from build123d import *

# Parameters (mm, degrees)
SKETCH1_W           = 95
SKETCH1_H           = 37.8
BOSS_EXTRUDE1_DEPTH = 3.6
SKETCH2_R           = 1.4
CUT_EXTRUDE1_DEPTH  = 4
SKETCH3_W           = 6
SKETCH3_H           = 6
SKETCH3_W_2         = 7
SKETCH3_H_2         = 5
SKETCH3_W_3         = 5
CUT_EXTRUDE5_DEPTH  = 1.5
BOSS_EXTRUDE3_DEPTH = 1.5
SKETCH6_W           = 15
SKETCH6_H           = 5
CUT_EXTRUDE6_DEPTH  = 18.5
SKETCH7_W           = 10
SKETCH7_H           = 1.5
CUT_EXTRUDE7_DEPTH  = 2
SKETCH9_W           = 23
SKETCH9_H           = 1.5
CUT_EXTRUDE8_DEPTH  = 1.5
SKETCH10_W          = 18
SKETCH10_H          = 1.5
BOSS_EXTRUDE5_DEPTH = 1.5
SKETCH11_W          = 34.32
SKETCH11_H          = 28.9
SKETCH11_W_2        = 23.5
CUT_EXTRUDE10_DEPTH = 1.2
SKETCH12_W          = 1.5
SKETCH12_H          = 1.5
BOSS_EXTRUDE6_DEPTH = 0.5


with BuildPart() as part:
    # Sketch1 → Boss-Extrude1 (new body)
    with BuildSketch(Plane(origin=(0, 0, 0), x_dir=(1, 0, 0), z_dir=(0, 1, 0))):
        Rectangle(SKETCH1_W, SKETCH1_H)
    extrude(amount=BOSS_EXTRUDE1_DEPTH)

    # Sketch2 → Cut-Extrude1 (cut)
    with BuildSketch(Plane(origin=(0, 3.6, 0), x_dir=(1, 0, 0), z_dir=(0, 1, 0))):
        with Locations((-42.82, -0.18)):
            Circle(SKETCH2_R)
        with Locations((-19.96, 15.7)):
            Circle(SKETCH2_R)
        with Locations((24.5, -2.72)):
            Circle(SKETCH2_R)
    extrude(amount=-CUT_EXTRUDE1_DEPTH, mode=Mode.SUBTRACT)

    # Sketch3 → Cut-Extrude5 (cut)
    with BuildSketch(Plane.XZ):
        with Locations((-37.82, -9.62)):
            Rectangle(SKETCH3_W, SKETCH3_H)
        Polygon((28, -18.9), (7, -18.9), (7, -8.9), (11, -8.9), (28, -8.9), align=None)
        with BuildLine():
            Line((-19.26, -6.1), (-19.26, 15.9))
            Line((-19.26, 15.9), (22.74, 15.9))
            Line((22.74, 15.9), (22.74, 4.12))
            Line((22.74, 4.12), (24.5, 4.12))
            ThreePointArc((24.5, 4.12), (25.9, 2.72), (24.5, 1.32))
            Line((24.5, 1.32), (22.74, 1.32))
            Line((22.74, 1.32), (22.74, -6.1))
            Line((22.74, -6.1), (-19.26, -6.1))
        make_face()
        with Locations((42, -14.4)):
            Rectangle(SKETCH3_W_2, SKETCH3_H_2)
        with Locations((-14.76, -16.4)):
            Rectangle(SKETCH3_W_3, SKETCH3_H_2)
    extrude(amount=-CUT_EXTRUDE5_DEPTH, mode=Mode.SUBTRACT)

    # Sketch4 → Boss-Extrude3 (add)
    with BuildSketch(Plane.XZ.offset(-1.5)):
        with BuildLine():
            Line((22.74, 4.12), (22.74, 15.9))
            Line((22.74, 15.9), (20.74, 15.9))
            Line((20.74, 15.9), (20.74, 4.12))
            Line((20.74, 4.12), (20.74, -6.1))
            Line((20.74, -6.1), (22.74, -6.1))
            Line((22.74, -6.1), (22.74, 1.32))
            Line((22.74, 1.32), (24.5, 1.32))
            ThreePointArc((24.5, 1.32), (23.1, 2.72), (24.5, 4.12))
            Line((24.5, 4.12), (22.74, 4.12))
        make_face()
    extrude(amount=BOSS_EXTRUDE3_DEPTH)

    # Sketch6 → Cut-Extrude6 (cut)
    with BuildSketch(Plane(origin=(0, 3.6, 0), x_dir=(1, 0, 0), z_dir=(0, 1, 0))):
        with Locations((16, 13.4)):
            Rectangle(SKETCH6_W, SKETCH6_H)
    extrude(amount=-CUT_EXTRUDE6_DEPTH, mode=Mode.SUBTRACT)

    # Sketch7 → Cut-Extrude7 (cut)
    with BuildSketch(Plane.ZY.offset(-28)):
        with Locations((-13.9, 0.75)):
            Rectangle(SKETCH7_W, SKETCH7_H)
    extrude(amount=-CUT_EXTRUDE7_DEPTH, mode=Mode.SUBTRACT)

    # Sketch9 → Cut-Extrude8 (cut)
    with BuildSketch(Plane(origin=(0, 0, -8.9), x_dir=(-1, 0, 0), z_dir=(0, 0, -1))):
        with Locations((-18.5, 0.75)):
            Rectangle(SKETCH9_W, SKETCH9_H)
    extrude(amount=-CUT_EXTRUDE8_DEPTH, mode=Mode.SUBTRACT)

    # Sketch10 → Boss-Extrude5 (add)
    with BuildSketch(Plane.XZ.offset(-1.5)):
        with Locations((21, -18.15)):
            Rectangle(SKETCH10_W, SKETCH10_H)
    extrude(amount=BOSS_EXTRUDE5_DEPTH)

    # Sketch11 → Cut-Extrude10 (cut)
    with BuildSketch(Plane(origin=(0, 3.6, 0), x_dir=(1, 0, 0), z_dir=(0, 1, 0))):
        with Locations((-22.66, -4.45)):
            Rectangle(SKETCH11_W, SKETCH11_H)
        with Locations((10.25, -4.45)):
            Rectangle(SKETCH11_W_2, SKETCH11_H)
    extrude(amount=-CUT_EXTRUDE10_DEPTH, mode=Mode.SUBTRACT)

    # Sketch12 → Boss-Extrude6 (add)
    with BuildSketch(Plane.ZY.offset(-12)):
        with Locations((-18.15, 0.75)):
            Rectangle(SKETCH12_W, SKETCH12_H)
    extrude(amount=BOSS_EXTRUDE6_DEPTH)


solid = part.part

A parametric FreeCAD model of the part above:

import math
import FreeCAD as App
import Part
import Sketcher
Q = App.Units.Quantity


def add_polygon(sketch, points):
    """Adds a closed chain of lines whose ends are joined by coincident constraints."""
    first, n = sketch.GeometryCount, len(points)
    for a, b in zip(points, points[1:] + points[:1]):
        sketch.addGeometry(Part.LineSegment(App.Vector(*a, 0), App.Vector(*b, 0)), False)
    for i in range(n):
        sketch.addConstraint(Sketcher.Constraint("Coincident", first + i, 2, first + (i + 1) % n, 1))

doc = App.newDocument("Part")
body = doc.addObject("PartDesign::Body", "Body")

# Sketch on XZ plane
sketch1 = body.newObject("Sketcher::SketchObject", "Sketch")
sketch1.AttachmentSupport = (doc.getObject("XZ_Plane"), [""])
sketch1.MapMode = "FlatFace"
add_polygon(sketch1, [(-47.5, -18.9), (-47.5, 18.9), (47.5, 18.9), (47.5, -18.9)])  # lines 0-3
sketch1.addConstraint(Sketcher.Constraint("Vertical", 0))
sketch1.addConstraint(Sketcher.Constraint("Horizontal", 1))
sketch1.addConstraint(Sketcher.Constraint("Vertical", 2))
sketch1.addConstraint(Sketcher.Constraint("Horizontal", 3))
sketch1.addConstraint(Sketcher.Constraint("Symmetric", 0, 2, 2, 2, -1, 1))
sketch1.addConstraint(Sketcher.Constraint("DistanceX", 1, 1, 1, 2, Q("95 mm")))
sketch1.addConstraint(Sketcher.Constraint("DistanceY", 0, 1, 0, 2, Q("37.8 mm")))
pad1 = body.newObject("PartDesign::Pad", "Pad")
pad1.Profile = sketch1
pad1.Length = 3.6
pad1.Reversed = True

# Sketch on XZ plane
sketch2 = body.newObject("Sketcher::SketchObject", "Sketch001")
sketch2.AttachmentSupport = (doc.getObject("XZ_Plane"), [""])
sketch2.MapMode = "FlatFace"
sketch2.AttachmentOffset = App.Placement(App.Vector(0, 0, -3.6), App.Rotation())
sketch2.addGeometry(Part.Circle(App.Vector(-42.82, 0.18, 0), App.Vector(0, 0, 1), 1.4), False)
sketch2.addGeometry(Part.Circle(App.Vector(-19.96, -15.7, 0), App.Vector(0, 0, 1), 1.4), False)
sketch2.addGeometry(Part.Circle(App.Vector(24.5, 2.72, 0), App.Vector(0, 0, 1), 1.4), False)
sketch2.addConstraint(Sketcher.Constraint("Equal", 0, 1))
sketch2.addConstraint(Sketcher.Constraint("Equal", 1, 2))
sketch2.addConstraint(Sketcher.Constraint("Diameter", 0, Q("2.8 mm")))
sketch2.addConstraint(Sketcher.Constraint("DistanceY", 1, 3, -1, 1, Q("15.7 mm")))
sketch2.addConstraint(Sketcher.Constraint("DistanceX", -1, 1, 2, 3, Q("24.5 mm")))
sketch2.addConstraint(Sketcher.Constraint("DistanceX", 0, 3, -1, 1, Q("42.82 mm")))
sketch2.addConstraint(Sketcher.Constraint("DistanceY", -1, 1, 0, 3, Q("0.18 mm")))
sketch2.addConstraint(Sketcher.Constraint("DistanceX", 1, 3, -1, 1, Q("19.96 mm")))
sketch2.addConstraint(Sketcher.Constraint("DistanceY", -1, 1, 2, 3, Q("2.72 mm")))
pocket1 = body.newObject("PartDesign::Pocket", "Pocket")
pocket1.Profile = sketch2
pocket1.Length = 4
pocket1.Reversed = True

# Sketch on XZ plane
sketch3 = body.newObject("Sketcher::SketchObject", "Sketch002")
sketch3.AttachmentSupport = (doc.getObject("XZ_Plane"), [""])
sketch3.MapMode = "FlatFace"
add_polygon(sketch3, [(-40.82, -6.62), (-40.82, -12.62), (-34.82, -12.62), (-34.82, -6.62)])  # lines 0-3
add_polygon(sketch3, [(7, -18.9), (28, -18.9), (28, -8.9), (7, -8.9)])  # lines 4-7
sketch3.addGeometry(Part.LineSegment(App.Vector(-19.26, 15.9, 0), App.Vector(-19.26, -6.1, 0)), False)  # 8
sketch3.addGeometry(Part.LineSegment(App.Vector(-19.26, -6.1, 0), App.Vector(22.74, -6.1, 0)), False)  # 9
sketch3.addGeometry(Part.LineSegment(App.Vector(22.74, -6.1, 0), App.Vector(22.74, 1.32, 0)), False)  # 10
sketch3.addGeometry(Part.LineSegment(App.Vector(22.74, 1.32, 0), App.Vector(24.5, 1.32, 0)), False)  # 11
sketch3.addGeometry(Part.ArcOfCircle(Part.Circle(App.Vector(24.5, 2.72, 0), App.Vector(0, 0, 1), 1.4), math.radians(-90), math.radians(90)), False)  # 12
sketch3.addGeometry(Part.LineSegment(App.Vector(24.5, 4.12, 0), App.Vector(22.74, 4.12, 0)), False)  # 13
sketch3.addGeometry(Part.LineSegment(App.Vector(22.74, 4.12, 0), App.Vector(22.74, 15.9, 0)), False)  # 14
sketch3.addGeometry(Part.LineSegment(App.Vector(22.74, 15.9, 0), App.Vector(-19.26, 15.9, 0)), False)  # 15
add_polygon(sketch3, [(38.5, -11.9), (38.5, -16.9), (45.5, -16.9), (45.5, -11.9)])  # lines 16-19
add_polygon(sketch3, [(-17.26, -13.9), (-17.26, -18.9), (-12.26, -18.9), (-12.26, -13.9)])  # lines 20-23
sketch3.addConstraint(Sketcher.Constraint("Coincident", 8, 2, 9, 1))
sketch3.addConstraint(Sketcher.Constraint("Coincident", 9, 2, 10, 1))
sketch3.addConstraint(Sketcher.Constraint("Coincident", 10, 2, 11, 1))
sketch3.addConstraint(Sketcher.Constraint("Tangent", 11, 2, 12, 1))
sketch3.addConstraint(Sketcher.Constraint("Tangent", 12, 2, 13, 1))
sketch3.addConstraint(Sketcher.Constraint("Coincident", 13, 2, 14, 1))
sketch3.addConstraint(Sketcher.Constraint("Coincident", 14, 2, 15, 1))
sketch3.addConstraint(Sketcher.Constraint("Coincident", 15, 2, 8, 1))
sketch3.addConstraint(Sketcher.Constraint("Vertical", 0))
sketch3.addConstraint(Sketcher.Constraint("Horizontal", 1))
sketch3.addConstraint(Sketcher.Constraint("Vertical", 2))
sketch3.addConstraint(Sketcher.Constraint("Horizontal", 3))
sketch3.addConstraint(Sketcher.Constraint("Horizontal", 4))
sketch3.addConstraint(Sketcher.Constraint("Vertical", 5))
sketch3.addConstraint(Sketcher.Constraint("Horizontal", 6))
sketch3.addConstraint(Sketcher.Constraint("Vertical", 7))
sketch3.addConstraint(Sketcher.Constraint("Vertical", 8))
sketch3.addConstraint(Sketcher.Constraint("Horizontal", 9))
sketch3.addConstraint(Sketcher.Constraint("Vertical", 10))
sketch3.addConstraint(Sketcher.Constraint("Horizontal", 11))
sketch3.addConstraint(Sketcher.Constraint("Horizontal", 13))
sketch3.addConstraint(Sketcher.Constraint("Vertical", 14))
sketch3.addConstraint(Sketcher.Constraint("Horizontal", 15))
sketch3.addConstraint(Sketcher.Constraint("Vertical", 16))
sketch3.addConstraint(Sketcher.Constraint("Horizontal", 17))
sketch3.addConstraint(Sketcher.Constraint("Vertical", 18))
sketch3.addConstraint(Sketcher.Constraint("Horizontal", 19))
sketch3.addConstraint(Sketcher.Constraint("Vertical", 20))
sketch3.addConstraint(Sketcher.Constraint("Horizontal", 21))
sketch3.addConstraint(Sketcher.Constraint("Vertical", 22))
sketch3.addConstraint(Sketcher.Constraint("Horizontal", 23))
sketch3.addConstraint(Sketcher.Constraint("Horizontal", 7, 2, 20, 2))
sketch3.addConstraint(Sketcher.Constraint("Vertical", 10, 2, 13, 2))
sketch3.addConstraint(Sketcher.Constraint("Equal", 3, 0))
sketch3.addConstraint(Sketcher.Constraint("Equal", 23, 16))
sketch3.addConstraint(Sketcher.Constraint("Equal", 18, 20))
sketch3.addConstraint(Sketcher.Constraint("Radius", 12, Q("1.4 mm")))
sketch3.addConstraint(Sketcher.Constraint("DistanceX", 1, 1, 1, 2, Q("6 mm")))
sketch3.addConstraint(Sketcher.Constraint("DistanceX", 4, 1, 4, 2, Q("21 mm")))
sketch3.addConstraint(Sketcher.Constraint("DistanceX", 9, 1, 9, 2, Q("42 mm")))
sketch3.addConstraint(Sketcher.Constraint("DistanceX", 17, 1, 17, 2, Q("7 mm")))
sketch3.addConstraint(Sketcher.Constraint("DistanceX", 21, 1, 21, 2, Q("5 mm")))
sketch3.addConstraint(Sketcher.Constraint("DistanceY", 5, 1, 5, 2, Q("10 mm")))
sketch3.addConstraint(Sketcher.Constraint("DistanceY", 8, 2, 8, 1, Q("22 mm")))
sketch3.addConstraint(Sketcher.Constraint("DistanceX", -1, 1, 4, 2, Q("28 mm")))
sketch3.addConstraint(Sketcher.Constraint("DistanceY", 4, 2, 16, 2, Q("2 mm")))
sketch3.addConstraint(Sketcher.Constraint("DistanceX", 11, 2, 16, 2, Q("14 mm")))
sketch3.addConstraint(Sketcher.Constraint("DistanceX", 8, 2, 20, 2, Q("2 mm")))
sketch3.addConstraint(Sketcher.Constraint("DistanceX", 11, 1, 11, 2, Q("1.76 mm")))
sketch3.addConstraint(Sketcher.Constraint("DistanceY", 10, 1, 10, 2, Q("7.42 mm")))
sketch3.addConstraint(Sketcher.Constraint("DistanceX", -1, 1, 12, 3, Q("24.5 mm")))
sketch3.addConstraint(Sketcher.Constraint("DistanceY", 4, 2, -1, 1, Q("18.9 mm")))
sketch3.addConstraint(Sketcher.Constraint("DistanceY", 8, 2, -1, 1, Q("6.1 mm")))
sketch3.addConstraint(Sketcher.Constraint("DistanceX", 0, 2, -1, 1, Q("40.82 mm")))
sketch3.addConstraint(Sketcher.Constraint("DistanceY", 0, 2, -1, 1, Q("12.62 mm")))
pocket2 = body.newObject("PartDesign::Pocket", "Pocket001")
pocket2.Profile = sketch3
pocket2.Length = 1.5

# Sketch on XZ plane
sketch4 = body.newObject("Sketcher::SketchObject", "Sketch003")
sketch4.AttachmentSupport = (doc.getObject("XZ_Plane"), [""])
sketch4.MapMode = "FlatFace"
sketch4.AttachmentOffset = App.Placement(App.Vector(0, 0, -1.5), App.Rotation())
sketch4.addGeometry(Part.LineSegment(App.Vector(22.74, 4.12, 0), App.Vector(22.74, 15.9, 0)), False)
sketch4.addGeometry(Part.LineSegment(App.Vector(22.74, 15.9, 0), App.Vector(20.74, 15.9, 0)), False)
sketch4.addGeometry(Part.LineSegment(App.Vector(20.74, 15.9, 0), App.Vector(20.74, -6.1, 0)), False)
sketch4.addGeometry(Part.LineSegment(App.Vector(20.74, -6.1, 0), App.Vector(22.74, -6.1, 0)), False)
sketch4.addGeometry(Part.LineSegment(App.Vector(22.74, -6.1, 0), App.Vector(22.74, 1.32, 0)), False)
sketch4.addGeometry(Part.LineSegment(App.Vector(22.74, 1.32, 0), App.Vector(24.5, 1.32, 0)), False)
sketch4.addGeometry(Part.ArcOfCircle(Part.Circle(App.Vector(24.5, 2.72, 0), App.Vector(0, 0, 1), 1.4), math.radians(90), math.radians(270)), False)
sketch4.addGeometry(Part.LineSegment(App.Vector(24.5, 4.12, 0), App.Vector(22.74, 4.12, 0)), False)
sketch4.addConstraint(Sketcher.Constraint("Coincident", 0, 2, 1, 1))
sketch4.addConstraint(Sketcher.Constraint("Coincident", 1, 2, 2, 1))
sketch4.addConstraint(Sketcher.Constraint("Coincident", 2, 2, 3, 1))
sketch4.addConstraint(Sketcher.Constraint("Coincident", 3, 2, 4, 1))
sketch4.addConstraint(Sketcher.Constraint("Coincident", 4, 2, 5, 1))
sketch4.addConstraint(Sketcher.Constraint("Tangent", 5, 2, 6, 2))
sketch4.addConstraint(Sketcher.Constraint("Tangent", 6, 1, 7, 1))
sketch4.addConstraint(Sketcher.Constraint("Coincident", 7, 2, 0, 1))
sketch4.addConstraint(Sketcher.Constraint("Vertical", 0))
sketch4.addConstraint(Sketcher.Constraint("Horizontal", 1))
sketch4.addConstraint(Sketcher.Constraint("Vertical", 2))
sketch4.addConstraint(Sketcher.Constraint("Horizontal", 3))
sketch4.addConstraint(Sketcher.Constraint("Vertical", 4))
sketch4.addConstraint(Sketcher.Constraint("Horizontal", 5))
sketch4.addConstraint(Sketcher.Constraint("Horizontal", 7))
sketch4.addConstraint(Sketcher.Constraint("Vertical", 0, 2, 3, 2))
sketch4.addConstraint(Sketcher.Constraint("Radius", 6, Q("1.4 mm")))
sketch4.addConstraint(Sketcher.Constraint("DistanceX", 1, 2, 1, 1, Q("2 mm")))
sketch4.addConstraint(Sketcher.Constraint("DistanceY", 2, 2, 2, 1, Q("22 mm")))
sketch4.addConstraint(Sketcher.Constraint("DistanceX", 5, 1, 5, 2, Q("1.76 mm")))
sketch4.addConstraint(Sketcher.Constraint("DistanceY", 0, 1, 0, 2, Q("11.78 mm")))
sketch4.addConstraint(Sketcher.Constraint("DistanceX", -1, 1, 6, 3, Q("24.5 mm")))
sketch4.addConstraint(Sketcher.Constraint("DistanceY", -1, 1, 0, 2, Q("15.9 mm")))
pad2 = body.newObject("PartDesign::Pad", "Pad001")
pad2.Profile = sketch4
pad2.Length = 1.5

# Sketch on XZ plane
sketch5 = body.newObject("Sketcher::SketchObject", "Sketch004")
sketch5.AttachmentSupport = (doc.getObject("XZ_Plane"), [""])
sketch5.MapMode = "FlatFace"
sketch5.AttachmentOffset = App.Placement(App.Vector(0, 0, -3.6), App.Rotation())
add_polygon(sketch5, [(8.5, -15.9), (8.5, -10.9), (23.5, -10.9), (23.5, -15.9)])  # lines 0-3
sketch5.addConstraint(Sketcher.Constraint("Vertical", 0))
sketch5.addConstraint(Sketcher.Constraint("Horizontal", 1))
sketch5.addConstraint(Sketcher.Constraint("Vertical", 2))
sketch5.addConstraint(Sketcher.Constraint("Horizontal", 3))
sketch5.addConstraint(Sketcher.Constraint("DistanceX", 1, 1, 1, 2, Q("15 mm")))
sketch5.addConstraint(Sketcher.Constraint("DistanceY", 0, 1, 0, 2, Q("5 mm")))
sketch5.addConstraint(Sketcher.Constraint("DistanceX", -1, 1, 0, 2, Q("8.5 mm")))
sketch5.addConstraint(Sketcher.Constraint("DistanceY", 0, 2, -1, 1, Q("10.9 mm")))
pocket3 = body.newObject("PartDesign::Pocket", "Pocket002")
pocket3.Profile = sketch5
pocket3.Length = 18.5
pocket3.Reversed = True

# Sketch on YZ plane
sketch6 = body.newObject("Sketcher::SketchObject", "Sketch005")
sketch6.AttachmentSupport = (doc.getObject("YZ_Plane"), [""])
sketch6.MapMode = "FlatFace"
sketch6.AttachmentOffset = App.Placement(App.Vector(0, 0, 28), App.Rotation())
add_polygon(sketch6, [(1.5, -18.9), (0, -18.9), (0, -8.9), (1.5, -8.9)])  # lines 0-3
sketch6.addConstraint(Sketcher.Constraint("Horizontal", 0))
sketch6.addConstraint(Sketcher.Constraint("Vertical", 1))
sketch6.addConstraint(Sketcher.Constraint("Horizontal", 2))
sketch6.addConstraint(Sketcher.Constraint("Vertical", 3))
sketch6.addConstraint(Sketcher.Constraint("PointOnObject", 0, 2, -2))
sketch6.addConstraint(Sketcher.Constraint("DistanceY", 1, 1, 1, 2, Q("10 mm")))
sketch6.addConstraint(Sketcher.Constraint("DistanceX", 0, 2, 0, 1, Q("1.5 mm")))
sketch6.addConstraint(Sketcher.Constraint("DistanceY", 0, 2, -1, 1, Q("18.9 mm")))
pocket4 = body.newObject("PartDesign::Pocket", "Pocket003")
pocket4.Profile = sketch6
pocket4.Length = 2
pocket4.Reversed = True

# Sketch on XY plane
sketch7 = body.newObject("Sketcher::SketchObject", "Sketch006")
sketch7.AttachmentSupport = (doc.getObject("XY_Plane"), [""])
sketch7.MapMode = "FlatFace"
sketch7.AttachmentOffset = App.Placement(App.Vector(0, 0, -8.9), App.Rotation())
add_polygon(sketch7, [(30, 1.5), (30, 0), (7, 0), (7, 1.5)])  # lines 0-3
sketch7.addConstraint(Sketcher.Constraint("Vertical", 0))
sketch7.addConstraint(Sketcher.Constraint("Horizontal", 1))
sketch7.addConstraint(Sketcher.Constraint("Vertical", 2))
sketch7.addConstraint(Sketcher.Constraint("Horizontal", 3))
sketch7.addConstraint(Sketcher.Constraint("PointOnObject", 0, 2, -1))
sketch7.addConstraint(Sketcher.Constraint("DistanceX", 1, 2, 1, 1, Q("23 mm")))
sketch7.addConstraint(Sketcher.Constraint("DistanceY", 0, 2, 0, 1, Q("1.5 mm")))
sketch7.addConstraint(Sketcher.Constraint("DistanceX", -1, 1, 0, 2, Q("30 mm")))
pocket5 = body.newObject("PartDesign::Pocket", "Pocket004")
pocket5.Profile = sketch7
pocket5.Length = 1.5
pocket5.Reversed = True

# Sketch on XZ plane
sketch8 = body.newObject("Sketcher::SketchObject", "Sketch007")
sketch8.AttachmentSupport = (doc.getObject("XZ_Plane"), [""])
sketch8.MapMode = "FlatFace"
sketch8.AttachmentOffset = App.Placement(App.Vector(0, 0, -1.5), App.Rotation())
add_polygon(sketch8, [(12, -17.4), (12, -18.9), (30, -18.9), (30, -17.4)])  # lines 0-3
sketch8.addConstraint(Sketcher.Constraint("Vertical", 0))
sketch8.addConstraint(Sketcher.Constraint("Horizontal", 1))
sketch8.addConstraint(Sketcher.Constraint("Vertical", 2))
sketch8.addConstraint(Sketcher.Constraint("Horizontal", 3))
sketch8.addConstraint(Sketcher.Constraint("DistanceX", 1, 1, 1, 2, Q("18 mm")))
sketch8.addConstraint(Sketcher.Constraint("DistanceY", 0, 2, 0, 1, Q("1.5 mm")))
sketch8.addConstraint(Sketcher.Constraint("DistanceX", -1, 1, 0, 2, Q("12 mm")))
sketch8.addConstraint(Sketcher.Constraint("DistanceY", 0, 2, -1, 1, Q("18.9 mm")))
pad3 = body.newObject("PartDesign::Pad", "Pad002")
pad3.Profile = sketch8
pad3.Length = 1.5

# Sketch on XZ plane
sketch9 = body.newObject("Sketcher::SketchObject", "Sketch008")
sketch9.AttachmentSupport = (doc.getObject("XZ_Plane"), [""])
sketch9.MapMode = "FlatFace"
sketch9.AttachmentOffset = App.Placement(App.Vector(0, 0, -3.6), App.Rotation())
add_polygon(sketch9, [(-39.82, -10), (-39.82, 18.9), (-5.5, 18.9), (-5.5, -10)])  # lines 0-3
add_polygon(sketch9, [(-1.5, -10), (-1.5, 18.9), (22, 18.9), (22, -10)])  # lines 4-7
sketch9.addConstraint(Sketcher.Constraint("Vertical", 0))
sketch9.addConstraint(Sketcher.Constraint("Horizontal", 1))
sketch9.addConstraint(Sketcher.Constraint("Vertical", 2))
sketch9.addConstraint(Sketcher.Constraint("Horizontal", 3))
sketch9.addConstraint(Sketcher.Constraint("Vertical", 4))
sketch9.addConstraint(Sketcher.Constraint("Horizontal", 5))
sketch9.addConstraint(Sketcher.Constraint("Vertical", 6))
sketch9.addConstraint(Sketcher.Constraint("Horizontal", 7))
sketch9.addConstraint(Sketcher.Constraint("Horizontal", 1, 2, 4, 2))
sketch9.addConstraint(Sketcher.Constraint("Horizontal", 3, 2, 6, 2))
sketch9.addConstraint(Sketcher.Constraint("DistanceX", 5, 1, 5, 2, Q("23.5 mm")))
sketch9.addConstraint(Sketcher.Constraint("DistanceY", 0, 1, 0, 2, Q("28.9 mm")))
sketch9.addConstraint(Sketcher.Constraint("DistanceY", 2, 2, -1, 1, Q("10 mm")))
sketch9.addConstraint(Sketcher.Constraint("DistanceX", -1, 1, 5, 2, Q("22 mm")))
sketch9.addConstraint(Sketcher.Constraint("DistanceX", 1, 2, 4, 2, Q("4 mm")))
sketch9.addConstraint(Sketcher.Constraint("DistanceX", 1, 1, 1, 2, Q("34.32 mm")))
pocket6 = body.newObject("PartDesign::Pocket", "Pocket005")
pocket6.Profile = sketch9
pocket6.Length = 1.2
pocket6.Reversed = True

# Sketch on YZ plane
sketch10 = body.newObject("Sketcher::SketchObject", "Sketch009")
sketch10.AttachmentSupport = (doc.getObject("YZ_Plane"), [""])
sketch10.MapMode = "FlatFace"
sketch10.AttachmentOffset = App.Placement(App.Vector(0, 0, 12), App.Rotation())
add_polygon(sketch10, [(1.5, -18.9), (0, -18.9), (0, -17.4), (1.5, -17.4)])  # lines 0-3
sketch10.addConstraint(Sketcher.Constraint("Horizontal", 0))
sketch10.addConstraint(Sketcher.Constraint("Vertical", 1))
sketch10.addConstraint(Sketcher.Constraint("Horizontal", 2))
sketch10.addConstraint(Sketcher.Constraint("Vertical", 3))
sketch10.addConstraint(Sketcher.Constraint("PointOnObject", 0, 2, -2))
sketch10.addConstraint(Sketcher.Constraint("Equal", 2, 1))
sketch10.addConstraint(Sketcher.Constraint("DistanceX", 0, 2, 0, 1, Q("1.5 mm")))
sketch10.addConstraint(Sketcher.Constraint("DistanceY", 0, 2, -1, 1, Q("18.9 mm")))
pad4 = body.newObject("PartDesign::Pad", "Pad003")
pad4.Profile = sketch10
pad4.Length = 0.5
pad4.Reversed = True

doc.recompute()
